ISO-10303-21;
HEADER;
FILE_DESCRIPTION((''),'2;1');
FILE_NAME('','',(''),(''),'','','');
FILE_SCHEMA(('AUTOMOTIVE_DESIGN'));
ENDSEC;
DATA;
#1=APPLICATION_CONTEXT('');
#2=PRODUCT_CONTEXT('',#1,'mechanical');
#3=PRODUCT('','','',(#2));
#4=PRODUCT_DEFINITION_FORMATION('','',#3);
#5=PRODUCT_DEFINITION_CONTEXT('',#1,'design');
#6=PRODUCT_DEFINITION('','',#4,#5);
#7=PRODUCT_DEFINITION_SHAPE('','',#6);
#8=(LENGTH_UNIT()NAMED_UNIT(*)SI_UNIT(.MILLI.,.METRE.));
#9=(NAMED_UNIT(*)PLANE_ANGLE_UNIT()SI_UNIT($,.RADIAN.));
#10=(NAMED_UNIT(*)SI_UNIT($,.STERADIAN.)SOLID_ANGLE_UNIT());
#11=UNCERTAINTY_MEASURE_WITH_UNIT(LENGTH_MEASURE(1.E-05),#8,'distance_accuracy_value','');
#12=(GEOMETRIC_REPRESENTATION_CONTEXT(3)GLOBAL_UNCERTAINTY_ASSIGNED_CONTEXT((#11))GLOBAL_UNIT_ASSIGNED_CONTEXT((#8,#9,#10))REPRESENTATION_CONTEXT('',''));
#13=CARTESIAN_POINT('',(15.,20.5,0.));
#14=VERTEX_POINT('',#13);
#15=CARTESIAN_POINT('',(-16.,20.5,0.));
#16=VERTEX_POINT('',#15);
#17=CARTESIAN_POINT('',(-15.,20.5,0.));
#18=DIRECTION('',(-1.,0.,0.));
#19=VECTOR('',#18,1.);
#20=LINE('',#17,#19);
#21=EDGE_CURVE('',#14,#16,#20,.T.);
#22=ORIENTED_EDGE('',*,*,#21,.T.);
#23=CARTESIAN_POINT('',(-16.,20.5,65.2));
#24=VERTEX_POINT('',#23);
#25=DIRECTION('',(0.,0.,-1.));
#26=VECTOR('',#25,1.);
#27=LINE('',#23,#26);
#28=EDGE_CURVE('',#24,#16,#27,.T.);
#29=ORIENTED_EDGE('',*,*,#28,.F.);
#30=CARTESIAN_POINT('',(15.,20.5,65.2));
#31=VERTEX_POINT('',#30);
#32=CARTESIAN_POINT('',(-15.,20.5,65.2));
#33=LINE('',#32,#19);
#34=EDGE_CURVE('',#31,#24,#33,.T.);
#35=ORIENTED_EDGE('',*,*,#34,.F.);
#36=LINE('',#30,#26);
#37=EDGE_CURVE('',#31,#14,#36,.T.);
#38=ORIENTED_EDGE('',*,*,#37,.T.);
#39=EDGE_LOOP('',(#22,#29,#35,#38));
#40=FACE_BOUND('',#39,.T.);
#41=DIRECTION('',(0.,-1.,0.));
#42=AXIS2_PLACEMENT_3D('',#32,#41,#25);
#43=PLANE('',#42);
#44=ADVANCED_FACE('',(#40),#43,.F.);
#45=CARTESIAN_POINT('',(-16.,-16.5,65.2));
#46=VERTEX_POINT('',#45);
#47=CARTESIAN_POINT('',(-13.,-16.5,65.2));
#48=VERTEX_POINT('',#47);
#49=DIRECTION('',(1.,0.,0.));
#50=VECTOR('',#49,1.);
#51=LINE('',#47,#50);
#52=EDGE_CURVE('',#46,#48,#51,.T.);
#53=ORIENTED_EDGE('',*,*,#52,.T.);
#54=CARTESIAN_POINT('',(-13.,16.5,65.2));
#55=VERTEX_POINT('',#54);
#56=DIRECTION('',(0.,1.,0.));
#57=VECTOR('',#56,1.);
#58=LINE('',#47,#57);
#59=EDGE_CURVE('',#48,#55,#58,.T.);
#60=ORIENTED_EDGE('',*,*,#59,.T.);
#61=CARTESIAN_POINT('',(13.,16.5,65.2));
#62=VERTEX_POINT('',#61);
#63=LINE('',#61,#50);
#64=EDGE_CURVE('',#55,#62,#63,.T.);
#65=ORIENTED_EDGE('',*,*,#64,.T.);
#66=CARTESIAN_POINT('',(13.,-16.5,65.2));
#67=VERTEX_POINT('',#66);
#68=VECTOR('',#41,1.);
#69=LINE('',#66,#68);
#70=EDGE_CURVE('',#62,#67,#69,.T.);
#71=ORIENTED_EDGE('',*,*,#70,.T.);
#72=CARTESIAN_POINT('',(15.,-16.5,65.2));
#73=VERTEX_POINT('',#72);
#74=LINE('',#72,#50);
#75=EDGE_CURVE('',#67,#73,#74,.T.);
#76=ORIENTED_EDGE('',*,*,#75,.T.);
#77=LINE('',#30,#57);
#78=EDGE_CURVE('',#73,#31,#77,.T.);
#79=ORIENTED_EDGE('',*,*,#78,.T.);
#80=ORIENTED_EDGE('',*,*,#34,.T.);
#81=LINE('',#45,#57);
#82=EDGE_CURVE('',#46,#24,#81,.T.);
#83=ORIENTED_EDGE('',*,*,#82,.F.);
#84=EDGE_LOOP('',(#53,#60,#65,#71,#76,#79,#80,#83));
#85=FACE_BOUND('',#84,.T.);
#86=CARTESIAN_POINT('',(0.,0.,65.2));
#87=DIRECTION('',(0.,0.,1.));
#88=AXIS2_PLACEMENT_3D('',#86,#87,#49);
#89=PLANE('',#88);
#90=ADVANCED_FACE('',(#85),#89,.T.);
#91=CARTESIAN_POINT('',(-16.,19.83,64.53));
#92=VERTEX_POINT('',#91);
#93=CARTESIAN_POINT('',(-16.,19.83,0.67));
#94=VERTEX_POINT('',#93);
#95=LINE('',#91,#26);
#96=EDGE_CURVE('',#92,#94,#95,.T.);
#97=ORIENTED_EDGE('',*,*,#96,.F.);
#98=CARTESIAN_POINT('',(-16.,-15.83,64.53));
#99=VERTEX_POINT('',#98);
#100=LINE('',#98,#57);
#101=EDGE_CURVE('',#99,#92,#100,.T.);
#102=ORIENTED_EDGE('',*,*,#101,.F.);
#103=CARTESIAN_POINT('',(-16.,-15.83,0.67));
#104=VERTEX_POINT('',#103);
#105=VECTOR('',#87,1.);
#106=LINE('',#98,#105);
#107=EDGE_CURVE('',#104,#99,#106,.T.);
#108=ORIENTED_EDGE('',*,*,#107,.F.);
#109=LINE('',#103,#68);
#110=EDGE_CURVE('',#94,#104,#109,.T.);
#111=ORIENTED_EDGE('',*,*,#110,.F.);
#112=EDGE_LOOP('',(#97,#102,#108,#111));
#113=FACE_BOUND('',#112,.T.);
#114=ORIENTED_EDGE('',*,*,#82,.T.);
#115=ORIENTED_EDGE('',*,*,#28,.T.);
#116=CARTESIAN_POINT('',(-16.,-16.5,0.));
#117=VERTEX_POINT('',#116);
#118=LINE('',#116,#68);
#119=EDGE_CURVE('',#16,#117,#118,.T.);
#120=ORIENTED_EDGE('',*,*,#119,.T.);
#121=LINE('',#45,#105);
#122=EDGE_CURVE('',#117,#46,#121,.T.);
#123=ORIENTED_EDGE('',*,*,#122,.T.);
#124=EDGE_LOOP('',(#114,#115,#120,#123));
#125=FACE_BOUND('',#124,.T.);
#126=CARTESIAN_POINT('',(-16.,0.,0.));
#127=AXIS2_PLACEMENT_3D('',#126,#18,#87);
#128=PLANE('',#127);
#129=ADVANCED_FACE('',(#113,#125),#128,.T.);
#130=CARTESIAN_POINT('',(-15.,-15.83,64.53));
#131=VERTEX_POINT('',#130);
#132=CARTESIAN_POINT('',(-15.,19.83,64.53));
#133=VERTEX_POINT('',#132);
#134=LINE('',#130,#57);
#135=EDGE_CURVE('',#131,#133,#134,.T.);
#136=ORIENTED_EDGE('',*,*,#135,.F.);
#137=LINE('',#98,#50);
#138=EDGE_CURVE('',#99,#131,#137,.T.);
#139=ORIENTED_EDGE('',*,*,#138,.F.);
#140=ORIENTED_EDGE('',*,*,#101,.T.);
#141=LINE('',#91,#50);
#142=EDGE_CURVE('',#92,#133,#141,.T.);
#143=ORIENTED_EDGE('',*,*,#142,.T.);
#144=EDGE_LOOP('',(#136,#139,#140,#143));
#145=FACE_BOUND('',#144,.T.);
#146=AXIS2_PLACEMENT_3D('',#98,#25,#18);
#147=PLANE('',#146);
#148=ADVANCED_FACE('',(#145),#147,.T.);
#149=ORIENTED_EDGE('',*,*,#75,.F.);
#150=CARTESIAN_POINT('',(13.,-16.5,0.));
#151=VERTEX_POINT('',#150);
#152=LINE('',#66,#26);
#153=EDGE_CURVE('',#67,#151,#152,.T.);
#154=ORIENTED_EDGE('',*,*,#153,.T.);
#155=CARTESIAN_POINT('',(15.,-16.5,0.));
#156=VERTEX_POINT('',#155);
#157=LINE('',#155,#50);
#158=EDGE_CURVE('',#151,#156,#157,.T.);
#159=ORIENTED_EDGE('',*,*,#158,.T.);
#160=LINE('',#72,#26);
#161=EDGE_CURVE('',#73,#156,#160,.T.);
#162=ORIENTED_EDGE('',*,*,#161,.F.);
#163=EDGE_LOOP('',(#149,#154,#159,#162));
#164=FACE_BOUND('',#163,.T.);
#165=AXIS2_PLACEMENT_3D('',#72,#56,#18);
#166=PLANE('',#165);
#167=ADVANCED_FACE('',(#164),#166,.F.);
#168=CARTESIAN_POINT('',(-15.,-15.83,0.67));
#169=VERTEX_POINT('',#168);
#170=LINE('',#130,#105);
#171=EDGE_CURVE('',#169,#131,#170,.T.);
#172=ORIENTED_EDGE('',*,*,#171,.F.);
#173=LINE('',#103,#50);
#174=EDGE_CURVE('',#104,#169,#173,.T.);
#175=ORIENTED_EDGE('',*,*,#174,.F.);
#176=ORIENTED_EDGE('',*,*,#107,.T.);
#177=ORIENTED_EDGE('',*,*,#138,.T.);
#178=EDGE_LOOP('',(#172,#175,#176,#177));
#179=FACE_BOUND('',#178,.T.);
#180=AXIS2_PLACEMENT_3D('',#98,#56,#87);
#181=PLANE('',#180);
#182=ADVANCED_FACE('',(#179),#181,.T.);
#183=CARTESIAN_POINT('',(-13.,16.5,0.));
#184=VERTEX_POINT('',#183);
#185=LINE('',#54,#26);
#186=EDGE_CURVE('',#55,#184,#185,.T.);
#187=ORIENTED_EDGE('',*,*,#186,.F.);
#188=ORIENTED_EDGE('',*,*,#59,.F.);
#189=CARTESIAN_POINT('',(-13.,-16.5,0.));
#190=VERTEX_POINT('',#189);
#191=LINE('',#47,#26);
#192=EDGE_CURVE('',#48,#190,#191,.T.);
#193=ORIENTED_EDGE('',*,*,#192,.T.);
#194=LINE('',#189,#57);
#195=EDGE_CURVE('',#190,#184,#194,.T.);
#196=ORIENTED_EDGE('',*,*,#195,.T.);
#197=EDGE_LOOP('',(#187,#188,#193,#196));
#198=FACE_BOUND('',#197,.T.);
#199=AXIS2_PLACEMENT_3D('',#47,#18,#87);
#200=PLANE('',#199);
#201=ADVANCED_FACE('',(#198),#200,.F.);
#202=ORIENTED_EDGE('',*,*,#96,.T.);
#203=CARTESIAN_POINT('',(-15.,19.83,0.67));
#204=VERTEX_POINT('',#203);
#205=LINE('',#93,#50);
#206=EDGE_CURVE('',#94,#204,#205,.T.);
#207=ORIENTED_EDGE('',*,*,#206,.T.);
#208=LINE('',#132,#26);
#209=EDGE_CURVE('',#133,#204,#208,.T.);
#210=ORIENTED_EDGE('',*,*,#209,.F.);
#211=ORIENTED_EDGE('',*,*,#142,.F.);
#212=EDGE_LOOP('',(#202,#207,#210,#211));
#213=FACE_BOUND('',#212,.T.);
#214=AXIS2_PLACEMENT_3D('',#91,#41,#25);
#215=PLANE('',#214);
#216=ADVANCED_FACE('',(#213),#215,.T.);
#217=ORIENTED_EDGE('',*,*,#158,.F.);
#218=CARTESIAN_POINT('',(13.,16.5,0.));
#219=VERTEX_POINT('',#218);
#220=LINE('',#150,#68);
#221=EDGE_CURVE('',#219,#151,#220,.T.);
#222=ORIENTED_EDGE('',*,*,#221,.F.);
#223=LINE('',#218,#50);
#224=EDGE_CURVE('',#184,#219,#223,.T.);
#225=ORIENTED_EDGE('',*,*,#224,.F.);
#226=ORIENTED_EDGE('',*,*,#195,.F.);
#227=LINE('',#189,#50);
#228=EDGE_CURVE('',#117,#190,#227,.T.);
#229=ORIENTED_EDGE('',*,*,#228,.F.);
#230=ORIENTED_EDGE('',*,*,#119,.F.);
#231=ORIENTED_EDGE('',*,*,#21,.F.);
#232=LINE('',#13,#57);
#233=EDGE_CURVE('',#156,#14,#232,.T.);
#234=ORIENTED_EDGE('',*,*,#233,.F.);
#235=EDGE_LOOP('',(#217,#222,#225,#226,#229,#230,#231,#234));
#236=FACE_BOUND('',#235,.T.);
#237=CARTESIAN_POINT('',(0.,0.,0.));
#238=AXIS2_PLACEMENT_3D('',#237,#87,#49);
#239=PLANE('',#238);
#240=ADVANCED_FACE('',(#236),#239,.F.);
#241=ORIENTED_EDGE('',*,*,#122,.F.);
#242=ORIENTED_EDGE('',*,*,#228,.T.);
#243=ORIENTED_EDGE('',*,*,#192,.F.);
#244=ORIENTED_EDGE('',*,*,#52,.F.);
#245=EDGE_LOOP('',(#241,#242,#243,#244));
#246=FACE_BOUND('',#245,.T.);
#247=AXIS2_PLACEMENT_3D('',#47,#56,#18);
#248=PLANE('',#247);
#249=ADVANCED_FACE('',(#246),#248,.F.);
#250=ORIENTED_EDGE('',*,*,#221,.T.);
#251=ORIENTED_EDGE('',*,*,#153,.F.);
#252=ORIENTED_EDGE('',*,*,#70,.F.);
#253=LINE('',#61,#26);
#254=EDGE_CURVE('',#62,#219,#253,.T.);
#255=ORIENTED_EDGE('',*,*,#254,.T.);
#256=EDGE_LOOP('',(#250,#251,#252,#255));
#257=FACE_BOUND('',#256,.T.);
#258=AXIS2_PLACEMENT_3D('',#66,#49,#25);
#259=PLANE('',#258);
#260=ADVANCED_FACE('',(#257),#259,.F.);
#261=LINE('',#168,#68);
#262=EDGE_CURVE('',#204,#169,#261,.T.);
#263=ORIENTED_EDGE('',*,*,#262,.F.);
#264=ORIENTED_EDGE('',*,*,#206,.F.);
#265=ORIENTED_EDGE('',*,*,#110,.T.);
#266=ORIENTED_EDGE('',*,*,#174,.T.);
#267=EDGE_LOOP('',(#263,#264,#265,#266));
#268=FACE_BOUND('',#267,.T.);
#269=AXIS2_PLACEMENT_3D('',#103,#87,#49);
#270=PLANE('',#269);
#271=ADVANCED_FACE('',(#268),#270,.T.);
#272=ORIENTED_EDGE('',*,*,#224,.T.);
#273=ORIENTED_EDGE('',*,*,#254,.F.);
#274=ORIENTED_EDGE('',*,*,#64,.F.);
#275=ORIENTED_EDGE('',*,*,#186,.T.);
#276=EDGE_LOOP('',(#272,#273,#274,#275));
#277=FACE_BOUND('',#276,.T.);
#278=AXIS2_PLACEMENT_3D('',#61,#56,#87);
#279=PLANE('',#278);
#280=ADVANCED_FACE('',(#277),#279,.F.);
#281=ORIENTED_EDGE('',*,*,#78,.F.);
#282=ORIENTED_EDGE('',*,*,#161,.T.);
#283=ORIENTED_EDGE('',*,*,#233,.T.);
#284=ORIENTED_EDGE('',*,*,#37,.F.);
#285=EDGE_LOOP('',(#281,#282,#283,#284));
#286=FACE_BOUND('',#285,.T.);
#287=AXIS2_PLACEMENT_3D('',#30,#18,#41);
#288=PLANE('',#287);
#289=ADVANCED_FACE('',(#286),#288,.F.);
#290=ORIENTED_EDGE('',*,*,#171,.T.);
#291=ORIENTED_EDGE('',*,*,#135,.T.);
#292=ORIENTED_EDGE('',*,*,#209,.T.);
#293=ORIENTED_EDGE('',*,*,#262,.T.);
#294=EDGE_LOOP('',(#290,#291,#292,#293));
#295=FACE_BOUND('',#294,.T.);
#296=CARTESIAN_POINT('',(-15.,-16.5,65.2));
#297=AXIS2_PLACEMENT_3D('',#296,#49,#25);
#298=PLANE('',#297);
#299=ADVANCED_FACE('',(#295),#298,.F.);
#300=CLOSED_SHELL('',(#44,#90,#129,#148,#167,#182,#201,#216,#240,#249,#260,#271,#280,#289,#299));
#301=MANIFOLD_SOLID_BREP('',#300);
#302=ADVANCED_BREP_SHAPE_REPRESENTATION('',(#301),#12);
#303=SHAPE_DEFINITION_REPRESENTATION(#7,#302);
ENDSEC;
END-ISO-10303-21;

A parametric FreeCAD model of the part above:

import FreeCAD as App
import Part
import Sketcher
Q = App.Units.Quantity


def add_polygon(sketch, points):
    """Adds a closed chain of lines whose ends are joined by coincident constraints."""
    first, n = sketch.GeometryCount, len(points)
    for a, b in zip(points, points[1:] + points[:1]):
        sketch.addGeometry(Part.LineSegment(App.Vector(*a, 0), App.Vector(*b, 0)), False)
    for i in range(n):
        sketch.addConstraint(Sketcher.Constraint("Coincident", first + i, 2, first + (i + 1) % n, 1))

doc = App.newDocument("Part")
params = doc.addObject("Spreadsheet::Sheet", "Params")
for row, (alias, value) in enumerate([
    ("sketch1_width", "2 mm"),
    ("sketch1_width2", "26 mm"),
    ("sketch1_height", "33 mm"),
    ("sketch1_height2", "37 mm"),
    ("pad1_length", "65.2 mm"),
    ("sketch2_width", "37 mm"),
    ("sketch2_height", "65.2 mm"),
    ("sketch2_width2", "35.66 mm"),
    ("sketch2_height2", "63.86 mm"),
    ("pad2_length", "1 mm"),
], start=1):
    params.set(f"A{row}", alias)
    params.set(f"B{row}", "=" + value)
    params.setAlias(f"B{row}", alias)

body = doc.addObject("PartDesign::Body", "Body")

sketch1 = body.newObject("Sketcher::SketchObject", "Sketch")
sketch1.AttachmentSupport = (doc.getObject("XY_Plane"), [""])
sketch1.MapMode = "FlatFace"
add_polygon(sketch1, [(-15, -16.5), (-13, -16.5), (-13, 16.5), (13, 16.5), (13, -16.5), (15, -16.5), (15, 20.5), (-15, 20.5)])
sketch1.addConstraint(Sketcher.Constraint("Horizontal", 0))
sketch1.addConstraint(Sketcher.Constraint("Vertical", 1))
sketch1.addConstraint(Sketcher.Constraint("Horizontal", 2))
sketch1.addConstraint(Sketcher.Constraint("Vertical", 3))
sketch1.addConstraint(Sketcher.Constraint("Horizontal", 4))
sketch1.addConstraint(Sketcher.Constraint("Vertical", 5))
sketch1.addConstraint(Sketcher.Constraint("Horizontal", 6))
sketch1.addConstraint(Sketcher.Constraint("Vertical", 7))
sketch1.addConstraint(Sketcher.Constraint("Symmetric", 0, 2, 2, 2, -1, 1))
sketch1.addConstraint(Sketcher.Constraint("Symmetric", 4, 2, 7, 2, -2))
sketch1.addConstraint(Sketcher.Constraint("DistanceX", 0, 1, 0, 2, Q("2 mm")))
sketch1.addConstraint(Sketcher.Constraint("DistanceX", 2, 1, 2, 2, Q("26 mm")))
sketch1.addConstraint(Sketcher.Constraint("DistanceY", 1, 1, 1, 2, Q("33 mm")))
sketch1.addConstraint(Sketcher.Constraint("DistanceY", 5, 1, 5, 2, Q("37 mm")))
sketch1.setExpression("Constraints[18]", "Params.sketch1_width")
sketch1.setExpression("Constraints[19]", "Params.sketch1_width2")
sketch1.setExpression("Constraints[20]", "Params.sketch1_height")
sketch1.setExpression("Constraints[21]", "Params.sketch1_height2")
pad1 = body.newObject("PartDesign::Pad", "Pad")
pad1.Profile = sketch1
pad1.setExpression("Length", "Params.pad1_length")

sketch2 = body.newObject("Sketcher::SketchObject", "Sketch001")
sketch2.AttachmentSupport = (doc.getObject("YZ_Plane"), [""])
sketch2.MapMode = "FlatFace"
sketch2.AttachmentOffset = App.Placement(App.Vector(0, 0, -15), App.Rotation())
add_polygon(sketch2, [(20, 0), (-16, 0), (-16, 65), (20, 65)])
add_polygon(sketch2, [(-16, 65), (-16, 1), (20, 1), (20, 65)])
sketch2.addConstraint(Sketcher.Constraint("Horizontal", 0))
sketch2.addConstraint(Sketcher.Constraint("Vertical", 1))
sketch2.addConstraint(Sketcher.Constraint("Horizontal", 2))
sketch2.addConstraint(Sketcher.Constraint("Vertical", 3))
sketch2.addConstraint(Sketcher.Constraint("Vertical", 4))
sketch2.addConstraint(Sketcher.Constraint("Horizontal", 5))
sketch2.addConstraint(Sketcher.Constraint("Vertical", 6))
sketch2.addConstraint(Sketcher.Constraint("Horizontal", 7))
sketch2.addConstraint(Sketcher.Constraint("PointOnObject", 0, 2, -1))
sketch2.addConstraint(Sketcher.Constraint("DistanceX", 0, 2, 0, 1, Q("37 mm")))
sketch2.addConstraint(Sketcher.Constraint("DistanceY", 1, 1, 1, 2, Q("65.2 mm")))
sketch2.addConstraint(Sketcher.Constraint("DistanceX", 5, 1, 5, 2, Q("35.66 mm")))
sketch2.addConstraint(Sketcher.Constraint("DistanceY", 4, 2, 4, 1, Q("63.86 mm")))
sketch2.addConstraint(Sketcher.Constraint("DistanceX", 0, 2, -1, 1, Q("16.5 mm")))
sketch2.addConstraint(Sketcher.Constraint("DistanceX", 4, 2, -1, 1, Q("15.83 mm")))
sketch2.addConstraint(Sketcher.Constraint("DistanceY", -1, 1, 4, 2, Q("0.67 mm")))
sketch2.setExpression("Constraints[17]", "Params.sketch2_width")
sketch2.setExpression("Constraints[18]", "Params.sketch2_height")
sketch2.setExpression("Constraints[19]", "Params.sketch2_width2")
sketch2.setExpression("Constraints[20]", "Params.sketch2_height2")
pad2 = body.newObject("PartDesign::Pad", "Pad001")
pad2.Profile = sketch2
pad2.setExpression("Length", "Params.pad2_length")
pad2.Reversed = True

doc.recompute()
